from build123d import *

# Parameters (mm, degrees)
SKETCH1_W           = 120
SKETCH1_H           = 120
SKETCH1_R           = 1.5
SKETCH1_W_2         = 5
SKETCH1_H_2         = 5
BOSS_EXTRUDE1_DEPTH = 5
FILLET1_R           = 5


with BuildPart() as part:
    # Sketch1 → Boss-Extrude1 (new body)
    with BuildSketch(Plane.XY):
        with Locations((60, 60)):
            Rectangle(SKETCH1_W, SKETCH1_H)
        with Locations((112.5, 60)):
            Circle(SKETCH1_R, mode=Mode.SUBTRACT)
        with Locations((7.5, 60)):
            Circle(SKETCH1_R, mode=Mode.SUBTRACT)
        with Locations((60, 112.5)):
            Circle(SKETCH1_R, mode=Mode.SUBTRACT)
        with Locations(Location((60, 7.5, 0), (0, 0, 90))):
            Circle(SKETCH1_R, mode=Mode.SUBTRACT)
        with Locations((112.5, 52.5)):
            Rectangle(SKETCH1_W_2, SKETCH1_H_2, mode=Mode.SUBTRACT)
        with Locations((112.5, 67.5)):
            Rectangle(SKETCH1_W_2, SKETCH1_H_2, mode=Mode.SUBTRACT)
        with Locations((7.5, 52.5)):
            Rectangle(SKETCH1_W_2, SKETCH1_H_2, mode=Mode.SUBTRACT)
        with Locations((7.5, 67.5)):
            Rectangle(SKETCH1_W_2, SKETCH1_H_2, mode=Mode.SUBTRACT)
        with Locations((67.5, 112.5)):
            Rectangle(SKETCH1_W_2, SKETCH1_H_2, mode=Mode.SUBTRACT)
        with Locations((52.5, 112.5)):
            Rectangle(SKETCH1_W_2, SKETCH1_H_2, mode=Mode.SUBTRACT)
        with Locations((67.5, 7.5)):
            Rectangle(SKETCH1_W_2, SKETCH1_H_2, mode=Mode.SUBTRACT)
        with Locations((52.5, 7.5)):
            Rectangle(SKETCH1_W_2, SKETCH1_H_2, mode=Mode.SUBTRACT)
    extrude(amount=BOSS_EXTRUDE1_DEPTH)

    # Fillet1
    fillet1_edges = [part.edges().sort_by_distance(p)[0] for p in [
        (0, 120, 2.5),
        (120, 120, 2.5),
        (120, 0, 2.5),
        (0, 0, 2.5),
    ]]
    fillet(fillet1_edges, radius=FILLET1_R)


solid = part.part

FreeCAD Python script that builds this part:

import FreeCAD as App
import Part
import Sketcher

V = App.Vector


def edges_at(feature, points):
    """Names of the edges that pass closest to the given points."""
    edges = feature.Shape.Edges
    near = lambda p: min(range(len(edges)), key=lambda i: edges[i].distToShape(Part.Vertex(*p))[0])
    return sorted({f"Edge{near(p) + 1}" for p in points})


def add_polygon(sketch, points):
    """Adds a closed chain of lines whose ends are joined by coincident constraints."""
    first, n = sketch.GeometryCount, len(points)
    for a, b in zip(points, points[1:] + points[:1]):
        sketch.addGeometry(Part.LineSegment(App.Vector(*a, 0), App.Vector(*b, 0)), False)
    for i in range(n):
        sketch.addConstraint(Sketcher.Constraint("Coincident", first + i, 2, first + (i + 1) % n, 1))

doc = App.newDocument("Part")
params = doc.addObject("Spreadsheet::Sheet", "Params")
for row, (alias, value) in enumerate([
    ("sketch1_diameter", "3 mm"),
    ("sketch1_width", "120 mm"),
    ("sketch1_width2", "5 mm"),
    ("pad1_length", "5 mm"),
    ("fillet_radius", "5 mm"),
], start=1):
    params.set(f"A{row}", alias)
    params.set(f"B{row}", "=" + value)
    params.setAlias(f"B{row}", alias)

body = doc.addObject("PartDesign::Body", "Body")

# Sketch on XY plane
sketch1 = body.newObject("Sketcher::SketchObject", "Sketch")
sketch1.AttachmentSupport = (doc.getObject("XY_Plane"), [""])
sketch1.MapMode = "FlatFace"
add_polygon(sketch1, [(0, 120), (0, 0), (120, 0), (120, 120)])  # lines 0-3
add_polygon(sketch1, [(55, 5), (50, 5), (50, 10), (55, 10)])  # lines 4-7
add_polygon(sketch1, [(10, 50), (5, 50), (5, 55), (10, 55)])  # lines 8-11
sketch1.addGeometry(Part.Circle(V(60, 7.5, 0), V(0, 0, 1), 1.5), False)  # 12
add_polygon(sketch1, [(70, 5), (65, 5), (65, 10), (70, 10)])  # lines 13-16
add_polygon(sketch1, [(115, 50), (110, 50), (110, 55), (115, 55)])  # lines 17-20
sketch1.addGeometry(Part.Circle(V(7.5, 60, 0), V(0, 0, 1), 1.5), False)  # 21
add_polygon(sketch1, [(10, 65), (5, 65), (5, 70), (10, 70)])  # lines 22-25
add_polygon(sketch1, [(55, 110), (50, 110), (50, 115), (55, 115)])  # lines 26-29
sketch1.addGeometry(Part.Circle(V(112.5, 60, 0), V(0, 0, 1), 1.5), False)  # 30
add_polygon(sketch1, [(115, 65), (110, 65), (110, 70), (115, 70)])  # lines 31-34
sketch1.addGeometry(Part.Circle(V(60, 112.5, 0), V(0, 0, 1), 1.5), False)  # 35
add_polygon(sketch1, [(70, 110), (65, 110), (65, 115), (70, 115)])  # lines 36-39
sketch1.addConstraint([
    Sketcher.Constraint("Vertical", 0),
    Sketcher.Constraint("Horizontal", 1),
    Sketcher.Constraint("Vertical", 2),
    Sketcher.Constraint("Horizontal", 3),
    Sketcher.Constraint("Horizontal", 4),
    Sketcher.Constraint("Vertical", 5),
    Sketcher.Constraint("Horizontal", 6),
    Sketcher.Constraint("Vertical", 7),
    Sketcher.Constraint("Horizontal", 8),
    Sketcher.Constraint("Vertical", 9),
    Sketcher.Constraint("Horizontal", 10),
    Sketcher.Constraint("Vertical", 11),
    Sketcher.Constraint("Horizontal", 13),
    Sketcher.Constraint("Vertical", 14),
    Sketcher.Constraint("Horizontal", 15),
    Sketcher.Constraint("Vertical", 16),
    Sketcher.Constraint("Horizontal", 17),
    Sketcher.Constraint("Vertical", 18),
    Sketcher.Constraint("Horizontal", 19),
    Sketcher.Constraint("Vertical", 20),
    Sketcher.Constraint("Horizontal", 22),
    Sketcher.Constraint("Vertical", 23),
    Sketcher.Constraint("Horizontal", 24),
    Sketcher.Constraint("Vertical", 25),
    Sketcher.Constraint("Horizontal", 26),
    Sketcher.Constraint("Vertical", 27),
    Sketcher.Constraint("Horizontal", 28),
    Sketcher.Constraint("Vertical", 29),
    Sketcher.Constraint("Horizontal", 31),
    Sketcher.Constraint("Vertical", 32),
    Sketcher.Constraint("Horizontal", 33),
    Sketcher.Constraint("Vertical", 34),
    Sketcher.Constraint("Horizontal", 36),
    Sketcher.Constraint("Vertical", 37),
    Sketcher.Constraint("Horizontal", 38),
    Sketcher.Constraint("Vertical", 39),
    Sketcher.Constraint("Coincident", 0, 2, -1, 1),
    Sketcher.Constraint("Equal", 12, 21),
    Sketcher.Constraint("Equal", 21, 30),
    Sketcher.Constraint("Equal", 30, 35),
    Sketcher.Constraint("Horizontal", 21, 3, 30, 3),
    Sketcher.Constraint("Horizontal", 7, 2, 13, 2),
    Sketcher.Constraint("Horizontal", 6, 2, 14, 2),
    Sketcher.Constraint("Horizontal", 11, 2, 17, 2),
    Sketcher.Constraint("Horizontal", 10, 2, 18, 2),
    Sketcher.Constraint("Horizontal", 25, 2, 31, 2),
    Sketcher.Constraint("Horizontal", 24, 2, 32, 2),
    Sketcher.Constraint("Horizontal", 29, 2, 36, 2),
    Sketcher.Constraint("Horizontal", 28, 2, 37, 2),
    Sketcher.Constraint("Vertical", 12, 3, 35, 3),
    Sketcher.Constraint("Vertical", 9, 2, 22, 2),
    Sketcher.Constraint("Vertical", 11, 2, 24, 2),
    Sketcher.Constraint("Vertical", 5, 2, 26, 2),
    Sketcher.Constraint("Vertical", 7, 2, 28, 2),
    Sketcher.Constraint("Vertical", 18, 2, 31, 2),
    Sketcher.Constraint("Vertical", 20, 2, 33, 2),
    Sketcher.Constraint("Vertical", 14, 2, 36, 2),
    Sketcher.Constraint("Vertical", 16, 2, 38, 2),
    Sketcher.Constraint("Equal", 6, 8),
    Sketcher.Constraint("Equal", 10, 13),
    Sketcher.Constraint("Equal", 15, 17),
    Sketcher.Constraint("Equal", 3, 0),
    Sketcher.Constraint("Equal", 38, 5),
    Sketcher.Constraint("Equal", 7, 9),
    Sketcher.Constraint("Equal", 20, 23),
    Sketcher.Constraint("Equal", 25, 27),
    Sketcher.Constraint("Diameter", 12, 3.0),
    Sketcher.Constraint("DistanceX", 1, 1, 1, 2, 120.0),
    Sketcher.Constraint("DistanceX", 4, 2, 4, 1, 5.0),
    Sketcher.Constraint("DistanceX", -1, 1, 12, 3, 60.0),
    Sketcher.Constraint("DistanceY", -1, 1, 21, 3, 60.0),
    Sketcher.Constraint("DistanceX", -1, 1, 4, 2, 50.0),
    Sketcher.Constraint("DistanceY", -1, 1, 4, 2, 5.0),
    Sketcher.Constraint("DistanceX", -1, 1, 8, 2, 5.0),
    Sketcher.Constraint("DistanceY", -1, 1, 8, 2, 50.0),
    Sketcher.Constraint("DistanceX", -1, 1, 13, 2, 65.0),
    Sketcher.Constraint("DistanceX", -1, 1, 17, 2, 110.0),
    Sketcher.Constraint("DistanceY", -1, 1, 22, 2, 65.0),
    Sketcher.Constraint("DistanceY", -1, 1, 26, 2, 110.0),
    Sketcher.Constraint("DistanceX", 21, 3, 30, 3, 105.0),
    Sketcher.Constraint("DistanceY", 12, 3, 35, 3, 105.0),
    Sketcher.Constraint("DistanceY", -1, 1, 12, 3, 7.5),
    Sketcher.Constraint("DistanceX", -1, 1, 21, 3, 7.5),
])
sketch1.setExpression("Constraints[102]", "Params.sketch1_diameter")
sketch1.setExpression("Constraints[103]", "Params.sketch1_width")
sketch1.setExpression("Constraints[104]", "Params.sketch1_width2")
pad1 = body.newObject("PartDesign::Pad", "Pad")
pad1.Profile = sketch1
pad1.setExpression("Length", "Params.pad1_length")
doc.recompute()

fillet = body.newObject("PartDesign::Fillet", "Fillet")
fillet.Base = (pad1, edges_at(pad1, [
    (0, 120, 2.5),
    (120, 120, 2.5),
    (120, 0, 2.5),
    (0, 0, 2.5),
]))
fillet.setExpression("Radius", "Params.fillet_radius")

doc.recompute()
